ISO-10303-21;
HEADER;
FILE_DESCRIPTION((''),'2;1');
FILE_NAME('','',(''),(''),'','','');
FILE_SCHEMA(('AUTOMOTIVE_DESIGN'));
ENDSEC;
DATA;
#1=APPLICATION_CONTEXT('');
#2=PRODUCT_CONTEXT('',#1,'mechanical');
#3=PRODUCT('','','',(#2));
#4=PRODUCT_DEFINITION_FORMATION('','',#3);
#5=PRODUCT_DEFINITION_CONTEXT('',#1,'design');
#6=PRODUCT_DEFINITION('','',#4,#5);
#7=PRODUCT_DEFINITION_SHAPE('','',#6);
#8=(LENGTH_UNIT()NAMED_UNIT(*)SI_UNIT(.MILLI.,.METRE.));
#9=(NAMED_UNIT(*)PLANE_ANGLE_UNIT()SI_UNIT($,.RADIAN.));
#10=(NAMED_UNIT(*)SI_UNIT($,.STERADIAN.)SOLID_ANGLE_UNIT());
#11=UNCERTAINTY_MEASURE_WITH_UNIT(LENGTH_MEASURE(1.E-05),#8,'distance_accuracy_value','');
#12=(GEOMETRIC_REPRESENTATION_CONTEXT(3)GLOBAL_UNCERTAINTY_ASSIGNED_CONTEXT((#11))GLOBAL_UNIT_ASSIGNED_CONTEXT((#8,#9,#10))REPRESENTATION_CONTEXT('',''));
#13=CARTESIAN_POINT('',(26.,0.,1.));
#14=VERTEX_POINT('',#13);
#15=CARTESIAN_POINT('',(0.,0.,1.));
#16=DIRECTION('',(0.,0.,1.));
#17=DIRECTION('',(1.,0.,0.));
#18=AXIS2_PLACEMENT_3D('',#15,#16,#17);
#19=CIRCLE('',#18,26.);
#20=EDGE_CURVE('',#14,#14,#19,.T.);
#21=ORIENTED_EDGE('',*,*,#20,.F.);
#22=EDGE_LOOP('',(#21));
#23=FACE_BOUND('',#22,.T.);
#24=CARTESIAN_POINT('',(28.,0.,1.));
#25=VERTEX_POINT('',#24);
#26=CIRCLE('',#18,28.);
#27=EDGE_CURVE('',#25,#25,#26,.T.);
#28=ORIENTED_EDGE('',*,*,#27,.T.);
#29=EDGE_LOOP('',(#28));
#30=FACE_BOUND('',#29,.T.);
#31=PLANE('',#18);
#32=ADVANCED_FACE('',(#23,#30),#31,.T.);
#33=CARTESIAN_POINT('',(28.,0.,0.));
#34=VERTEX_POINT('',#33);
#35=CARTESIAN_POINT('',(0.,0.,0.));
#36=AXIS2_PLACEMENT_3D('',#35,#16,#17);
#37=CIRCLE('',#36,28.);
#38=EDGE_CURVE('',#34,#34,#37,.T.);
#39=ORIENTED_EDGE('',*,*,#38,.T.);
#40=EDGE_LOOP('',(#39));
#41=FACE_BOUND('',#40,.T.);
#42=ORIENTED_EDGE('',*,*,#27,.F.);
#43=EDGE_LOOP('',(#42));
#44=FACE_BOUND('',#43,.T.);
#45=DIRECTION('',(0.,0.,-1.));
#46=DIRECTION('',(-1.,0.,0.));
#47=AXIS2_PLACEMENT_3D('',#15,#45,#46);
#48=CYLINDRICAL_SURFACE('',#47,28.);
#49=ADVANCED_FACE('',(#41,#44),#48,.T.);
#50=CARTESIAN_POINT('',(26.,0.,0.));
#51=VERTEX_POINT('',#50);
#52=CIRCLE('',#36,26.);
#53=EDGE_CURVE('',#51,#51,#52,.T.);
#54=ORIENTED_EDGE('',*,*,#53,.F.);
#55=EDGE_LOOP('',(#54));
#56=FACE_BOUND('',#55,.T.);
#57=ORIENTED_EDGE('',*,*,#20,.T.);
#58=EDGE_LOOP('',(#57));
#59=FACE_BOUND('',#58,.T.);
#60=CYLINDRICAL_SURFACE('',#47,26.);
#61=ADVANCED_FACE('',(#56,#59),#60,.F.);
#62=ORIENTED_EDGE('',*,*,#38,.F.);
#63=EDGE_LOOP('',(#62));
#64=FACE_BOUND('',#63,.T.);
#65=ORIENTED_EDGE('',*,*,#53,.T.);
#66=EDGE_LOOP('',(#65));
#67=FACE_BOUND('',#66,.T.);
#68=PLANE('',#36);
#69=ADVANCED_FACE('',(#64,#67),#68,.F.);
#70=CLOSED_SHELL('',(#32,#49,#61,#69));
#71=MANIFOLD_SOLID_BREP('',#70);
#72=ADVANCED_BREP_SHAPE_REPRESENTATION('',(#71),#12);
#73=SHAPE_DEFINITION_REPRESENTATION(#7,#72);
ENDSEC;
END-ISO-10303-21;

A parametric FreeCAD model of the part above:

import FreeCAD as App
import Part
import Sketcher

V = App.Vector

doc = App.newDocument("Part")
body = doc.addObject("PartDesign::Body", "Body")

sketch1 = body.newObject("Sketcher::SketchObject", "Sketch")
sketch1.AttachmentSupport = (doc.getObject("XY_Plane"), [""])
sketch1.MapMode = "FlatFace"
sketch1.addGeometry(Part.Circle(V(0, 0, 0), V(0, 0, 1), 28), False)
sketch1.addGeometry(Part.Circle(V(0, 0, 0), V(0, 0, 1), 26), False)
sketch1.addConstraint(Sketcher.Constraint("Coincident", 0, 3, -1, 1))
sketch1.addConstraint(Sketcher.Constraint("Coincident", 1, 3, -1, 1))
sketch1.addConstraint(Sketcher.Constraint("Diameter", 0, 56.0))
sketch1.addConstraint(Sketcher.Constraint("Diameter", 1, 52.0))
pad1 = body.newObject("PartDesign::Pad", "Pad")
pad1.Profile = sketch1
pad1.Length = 1

doc.recompute()
